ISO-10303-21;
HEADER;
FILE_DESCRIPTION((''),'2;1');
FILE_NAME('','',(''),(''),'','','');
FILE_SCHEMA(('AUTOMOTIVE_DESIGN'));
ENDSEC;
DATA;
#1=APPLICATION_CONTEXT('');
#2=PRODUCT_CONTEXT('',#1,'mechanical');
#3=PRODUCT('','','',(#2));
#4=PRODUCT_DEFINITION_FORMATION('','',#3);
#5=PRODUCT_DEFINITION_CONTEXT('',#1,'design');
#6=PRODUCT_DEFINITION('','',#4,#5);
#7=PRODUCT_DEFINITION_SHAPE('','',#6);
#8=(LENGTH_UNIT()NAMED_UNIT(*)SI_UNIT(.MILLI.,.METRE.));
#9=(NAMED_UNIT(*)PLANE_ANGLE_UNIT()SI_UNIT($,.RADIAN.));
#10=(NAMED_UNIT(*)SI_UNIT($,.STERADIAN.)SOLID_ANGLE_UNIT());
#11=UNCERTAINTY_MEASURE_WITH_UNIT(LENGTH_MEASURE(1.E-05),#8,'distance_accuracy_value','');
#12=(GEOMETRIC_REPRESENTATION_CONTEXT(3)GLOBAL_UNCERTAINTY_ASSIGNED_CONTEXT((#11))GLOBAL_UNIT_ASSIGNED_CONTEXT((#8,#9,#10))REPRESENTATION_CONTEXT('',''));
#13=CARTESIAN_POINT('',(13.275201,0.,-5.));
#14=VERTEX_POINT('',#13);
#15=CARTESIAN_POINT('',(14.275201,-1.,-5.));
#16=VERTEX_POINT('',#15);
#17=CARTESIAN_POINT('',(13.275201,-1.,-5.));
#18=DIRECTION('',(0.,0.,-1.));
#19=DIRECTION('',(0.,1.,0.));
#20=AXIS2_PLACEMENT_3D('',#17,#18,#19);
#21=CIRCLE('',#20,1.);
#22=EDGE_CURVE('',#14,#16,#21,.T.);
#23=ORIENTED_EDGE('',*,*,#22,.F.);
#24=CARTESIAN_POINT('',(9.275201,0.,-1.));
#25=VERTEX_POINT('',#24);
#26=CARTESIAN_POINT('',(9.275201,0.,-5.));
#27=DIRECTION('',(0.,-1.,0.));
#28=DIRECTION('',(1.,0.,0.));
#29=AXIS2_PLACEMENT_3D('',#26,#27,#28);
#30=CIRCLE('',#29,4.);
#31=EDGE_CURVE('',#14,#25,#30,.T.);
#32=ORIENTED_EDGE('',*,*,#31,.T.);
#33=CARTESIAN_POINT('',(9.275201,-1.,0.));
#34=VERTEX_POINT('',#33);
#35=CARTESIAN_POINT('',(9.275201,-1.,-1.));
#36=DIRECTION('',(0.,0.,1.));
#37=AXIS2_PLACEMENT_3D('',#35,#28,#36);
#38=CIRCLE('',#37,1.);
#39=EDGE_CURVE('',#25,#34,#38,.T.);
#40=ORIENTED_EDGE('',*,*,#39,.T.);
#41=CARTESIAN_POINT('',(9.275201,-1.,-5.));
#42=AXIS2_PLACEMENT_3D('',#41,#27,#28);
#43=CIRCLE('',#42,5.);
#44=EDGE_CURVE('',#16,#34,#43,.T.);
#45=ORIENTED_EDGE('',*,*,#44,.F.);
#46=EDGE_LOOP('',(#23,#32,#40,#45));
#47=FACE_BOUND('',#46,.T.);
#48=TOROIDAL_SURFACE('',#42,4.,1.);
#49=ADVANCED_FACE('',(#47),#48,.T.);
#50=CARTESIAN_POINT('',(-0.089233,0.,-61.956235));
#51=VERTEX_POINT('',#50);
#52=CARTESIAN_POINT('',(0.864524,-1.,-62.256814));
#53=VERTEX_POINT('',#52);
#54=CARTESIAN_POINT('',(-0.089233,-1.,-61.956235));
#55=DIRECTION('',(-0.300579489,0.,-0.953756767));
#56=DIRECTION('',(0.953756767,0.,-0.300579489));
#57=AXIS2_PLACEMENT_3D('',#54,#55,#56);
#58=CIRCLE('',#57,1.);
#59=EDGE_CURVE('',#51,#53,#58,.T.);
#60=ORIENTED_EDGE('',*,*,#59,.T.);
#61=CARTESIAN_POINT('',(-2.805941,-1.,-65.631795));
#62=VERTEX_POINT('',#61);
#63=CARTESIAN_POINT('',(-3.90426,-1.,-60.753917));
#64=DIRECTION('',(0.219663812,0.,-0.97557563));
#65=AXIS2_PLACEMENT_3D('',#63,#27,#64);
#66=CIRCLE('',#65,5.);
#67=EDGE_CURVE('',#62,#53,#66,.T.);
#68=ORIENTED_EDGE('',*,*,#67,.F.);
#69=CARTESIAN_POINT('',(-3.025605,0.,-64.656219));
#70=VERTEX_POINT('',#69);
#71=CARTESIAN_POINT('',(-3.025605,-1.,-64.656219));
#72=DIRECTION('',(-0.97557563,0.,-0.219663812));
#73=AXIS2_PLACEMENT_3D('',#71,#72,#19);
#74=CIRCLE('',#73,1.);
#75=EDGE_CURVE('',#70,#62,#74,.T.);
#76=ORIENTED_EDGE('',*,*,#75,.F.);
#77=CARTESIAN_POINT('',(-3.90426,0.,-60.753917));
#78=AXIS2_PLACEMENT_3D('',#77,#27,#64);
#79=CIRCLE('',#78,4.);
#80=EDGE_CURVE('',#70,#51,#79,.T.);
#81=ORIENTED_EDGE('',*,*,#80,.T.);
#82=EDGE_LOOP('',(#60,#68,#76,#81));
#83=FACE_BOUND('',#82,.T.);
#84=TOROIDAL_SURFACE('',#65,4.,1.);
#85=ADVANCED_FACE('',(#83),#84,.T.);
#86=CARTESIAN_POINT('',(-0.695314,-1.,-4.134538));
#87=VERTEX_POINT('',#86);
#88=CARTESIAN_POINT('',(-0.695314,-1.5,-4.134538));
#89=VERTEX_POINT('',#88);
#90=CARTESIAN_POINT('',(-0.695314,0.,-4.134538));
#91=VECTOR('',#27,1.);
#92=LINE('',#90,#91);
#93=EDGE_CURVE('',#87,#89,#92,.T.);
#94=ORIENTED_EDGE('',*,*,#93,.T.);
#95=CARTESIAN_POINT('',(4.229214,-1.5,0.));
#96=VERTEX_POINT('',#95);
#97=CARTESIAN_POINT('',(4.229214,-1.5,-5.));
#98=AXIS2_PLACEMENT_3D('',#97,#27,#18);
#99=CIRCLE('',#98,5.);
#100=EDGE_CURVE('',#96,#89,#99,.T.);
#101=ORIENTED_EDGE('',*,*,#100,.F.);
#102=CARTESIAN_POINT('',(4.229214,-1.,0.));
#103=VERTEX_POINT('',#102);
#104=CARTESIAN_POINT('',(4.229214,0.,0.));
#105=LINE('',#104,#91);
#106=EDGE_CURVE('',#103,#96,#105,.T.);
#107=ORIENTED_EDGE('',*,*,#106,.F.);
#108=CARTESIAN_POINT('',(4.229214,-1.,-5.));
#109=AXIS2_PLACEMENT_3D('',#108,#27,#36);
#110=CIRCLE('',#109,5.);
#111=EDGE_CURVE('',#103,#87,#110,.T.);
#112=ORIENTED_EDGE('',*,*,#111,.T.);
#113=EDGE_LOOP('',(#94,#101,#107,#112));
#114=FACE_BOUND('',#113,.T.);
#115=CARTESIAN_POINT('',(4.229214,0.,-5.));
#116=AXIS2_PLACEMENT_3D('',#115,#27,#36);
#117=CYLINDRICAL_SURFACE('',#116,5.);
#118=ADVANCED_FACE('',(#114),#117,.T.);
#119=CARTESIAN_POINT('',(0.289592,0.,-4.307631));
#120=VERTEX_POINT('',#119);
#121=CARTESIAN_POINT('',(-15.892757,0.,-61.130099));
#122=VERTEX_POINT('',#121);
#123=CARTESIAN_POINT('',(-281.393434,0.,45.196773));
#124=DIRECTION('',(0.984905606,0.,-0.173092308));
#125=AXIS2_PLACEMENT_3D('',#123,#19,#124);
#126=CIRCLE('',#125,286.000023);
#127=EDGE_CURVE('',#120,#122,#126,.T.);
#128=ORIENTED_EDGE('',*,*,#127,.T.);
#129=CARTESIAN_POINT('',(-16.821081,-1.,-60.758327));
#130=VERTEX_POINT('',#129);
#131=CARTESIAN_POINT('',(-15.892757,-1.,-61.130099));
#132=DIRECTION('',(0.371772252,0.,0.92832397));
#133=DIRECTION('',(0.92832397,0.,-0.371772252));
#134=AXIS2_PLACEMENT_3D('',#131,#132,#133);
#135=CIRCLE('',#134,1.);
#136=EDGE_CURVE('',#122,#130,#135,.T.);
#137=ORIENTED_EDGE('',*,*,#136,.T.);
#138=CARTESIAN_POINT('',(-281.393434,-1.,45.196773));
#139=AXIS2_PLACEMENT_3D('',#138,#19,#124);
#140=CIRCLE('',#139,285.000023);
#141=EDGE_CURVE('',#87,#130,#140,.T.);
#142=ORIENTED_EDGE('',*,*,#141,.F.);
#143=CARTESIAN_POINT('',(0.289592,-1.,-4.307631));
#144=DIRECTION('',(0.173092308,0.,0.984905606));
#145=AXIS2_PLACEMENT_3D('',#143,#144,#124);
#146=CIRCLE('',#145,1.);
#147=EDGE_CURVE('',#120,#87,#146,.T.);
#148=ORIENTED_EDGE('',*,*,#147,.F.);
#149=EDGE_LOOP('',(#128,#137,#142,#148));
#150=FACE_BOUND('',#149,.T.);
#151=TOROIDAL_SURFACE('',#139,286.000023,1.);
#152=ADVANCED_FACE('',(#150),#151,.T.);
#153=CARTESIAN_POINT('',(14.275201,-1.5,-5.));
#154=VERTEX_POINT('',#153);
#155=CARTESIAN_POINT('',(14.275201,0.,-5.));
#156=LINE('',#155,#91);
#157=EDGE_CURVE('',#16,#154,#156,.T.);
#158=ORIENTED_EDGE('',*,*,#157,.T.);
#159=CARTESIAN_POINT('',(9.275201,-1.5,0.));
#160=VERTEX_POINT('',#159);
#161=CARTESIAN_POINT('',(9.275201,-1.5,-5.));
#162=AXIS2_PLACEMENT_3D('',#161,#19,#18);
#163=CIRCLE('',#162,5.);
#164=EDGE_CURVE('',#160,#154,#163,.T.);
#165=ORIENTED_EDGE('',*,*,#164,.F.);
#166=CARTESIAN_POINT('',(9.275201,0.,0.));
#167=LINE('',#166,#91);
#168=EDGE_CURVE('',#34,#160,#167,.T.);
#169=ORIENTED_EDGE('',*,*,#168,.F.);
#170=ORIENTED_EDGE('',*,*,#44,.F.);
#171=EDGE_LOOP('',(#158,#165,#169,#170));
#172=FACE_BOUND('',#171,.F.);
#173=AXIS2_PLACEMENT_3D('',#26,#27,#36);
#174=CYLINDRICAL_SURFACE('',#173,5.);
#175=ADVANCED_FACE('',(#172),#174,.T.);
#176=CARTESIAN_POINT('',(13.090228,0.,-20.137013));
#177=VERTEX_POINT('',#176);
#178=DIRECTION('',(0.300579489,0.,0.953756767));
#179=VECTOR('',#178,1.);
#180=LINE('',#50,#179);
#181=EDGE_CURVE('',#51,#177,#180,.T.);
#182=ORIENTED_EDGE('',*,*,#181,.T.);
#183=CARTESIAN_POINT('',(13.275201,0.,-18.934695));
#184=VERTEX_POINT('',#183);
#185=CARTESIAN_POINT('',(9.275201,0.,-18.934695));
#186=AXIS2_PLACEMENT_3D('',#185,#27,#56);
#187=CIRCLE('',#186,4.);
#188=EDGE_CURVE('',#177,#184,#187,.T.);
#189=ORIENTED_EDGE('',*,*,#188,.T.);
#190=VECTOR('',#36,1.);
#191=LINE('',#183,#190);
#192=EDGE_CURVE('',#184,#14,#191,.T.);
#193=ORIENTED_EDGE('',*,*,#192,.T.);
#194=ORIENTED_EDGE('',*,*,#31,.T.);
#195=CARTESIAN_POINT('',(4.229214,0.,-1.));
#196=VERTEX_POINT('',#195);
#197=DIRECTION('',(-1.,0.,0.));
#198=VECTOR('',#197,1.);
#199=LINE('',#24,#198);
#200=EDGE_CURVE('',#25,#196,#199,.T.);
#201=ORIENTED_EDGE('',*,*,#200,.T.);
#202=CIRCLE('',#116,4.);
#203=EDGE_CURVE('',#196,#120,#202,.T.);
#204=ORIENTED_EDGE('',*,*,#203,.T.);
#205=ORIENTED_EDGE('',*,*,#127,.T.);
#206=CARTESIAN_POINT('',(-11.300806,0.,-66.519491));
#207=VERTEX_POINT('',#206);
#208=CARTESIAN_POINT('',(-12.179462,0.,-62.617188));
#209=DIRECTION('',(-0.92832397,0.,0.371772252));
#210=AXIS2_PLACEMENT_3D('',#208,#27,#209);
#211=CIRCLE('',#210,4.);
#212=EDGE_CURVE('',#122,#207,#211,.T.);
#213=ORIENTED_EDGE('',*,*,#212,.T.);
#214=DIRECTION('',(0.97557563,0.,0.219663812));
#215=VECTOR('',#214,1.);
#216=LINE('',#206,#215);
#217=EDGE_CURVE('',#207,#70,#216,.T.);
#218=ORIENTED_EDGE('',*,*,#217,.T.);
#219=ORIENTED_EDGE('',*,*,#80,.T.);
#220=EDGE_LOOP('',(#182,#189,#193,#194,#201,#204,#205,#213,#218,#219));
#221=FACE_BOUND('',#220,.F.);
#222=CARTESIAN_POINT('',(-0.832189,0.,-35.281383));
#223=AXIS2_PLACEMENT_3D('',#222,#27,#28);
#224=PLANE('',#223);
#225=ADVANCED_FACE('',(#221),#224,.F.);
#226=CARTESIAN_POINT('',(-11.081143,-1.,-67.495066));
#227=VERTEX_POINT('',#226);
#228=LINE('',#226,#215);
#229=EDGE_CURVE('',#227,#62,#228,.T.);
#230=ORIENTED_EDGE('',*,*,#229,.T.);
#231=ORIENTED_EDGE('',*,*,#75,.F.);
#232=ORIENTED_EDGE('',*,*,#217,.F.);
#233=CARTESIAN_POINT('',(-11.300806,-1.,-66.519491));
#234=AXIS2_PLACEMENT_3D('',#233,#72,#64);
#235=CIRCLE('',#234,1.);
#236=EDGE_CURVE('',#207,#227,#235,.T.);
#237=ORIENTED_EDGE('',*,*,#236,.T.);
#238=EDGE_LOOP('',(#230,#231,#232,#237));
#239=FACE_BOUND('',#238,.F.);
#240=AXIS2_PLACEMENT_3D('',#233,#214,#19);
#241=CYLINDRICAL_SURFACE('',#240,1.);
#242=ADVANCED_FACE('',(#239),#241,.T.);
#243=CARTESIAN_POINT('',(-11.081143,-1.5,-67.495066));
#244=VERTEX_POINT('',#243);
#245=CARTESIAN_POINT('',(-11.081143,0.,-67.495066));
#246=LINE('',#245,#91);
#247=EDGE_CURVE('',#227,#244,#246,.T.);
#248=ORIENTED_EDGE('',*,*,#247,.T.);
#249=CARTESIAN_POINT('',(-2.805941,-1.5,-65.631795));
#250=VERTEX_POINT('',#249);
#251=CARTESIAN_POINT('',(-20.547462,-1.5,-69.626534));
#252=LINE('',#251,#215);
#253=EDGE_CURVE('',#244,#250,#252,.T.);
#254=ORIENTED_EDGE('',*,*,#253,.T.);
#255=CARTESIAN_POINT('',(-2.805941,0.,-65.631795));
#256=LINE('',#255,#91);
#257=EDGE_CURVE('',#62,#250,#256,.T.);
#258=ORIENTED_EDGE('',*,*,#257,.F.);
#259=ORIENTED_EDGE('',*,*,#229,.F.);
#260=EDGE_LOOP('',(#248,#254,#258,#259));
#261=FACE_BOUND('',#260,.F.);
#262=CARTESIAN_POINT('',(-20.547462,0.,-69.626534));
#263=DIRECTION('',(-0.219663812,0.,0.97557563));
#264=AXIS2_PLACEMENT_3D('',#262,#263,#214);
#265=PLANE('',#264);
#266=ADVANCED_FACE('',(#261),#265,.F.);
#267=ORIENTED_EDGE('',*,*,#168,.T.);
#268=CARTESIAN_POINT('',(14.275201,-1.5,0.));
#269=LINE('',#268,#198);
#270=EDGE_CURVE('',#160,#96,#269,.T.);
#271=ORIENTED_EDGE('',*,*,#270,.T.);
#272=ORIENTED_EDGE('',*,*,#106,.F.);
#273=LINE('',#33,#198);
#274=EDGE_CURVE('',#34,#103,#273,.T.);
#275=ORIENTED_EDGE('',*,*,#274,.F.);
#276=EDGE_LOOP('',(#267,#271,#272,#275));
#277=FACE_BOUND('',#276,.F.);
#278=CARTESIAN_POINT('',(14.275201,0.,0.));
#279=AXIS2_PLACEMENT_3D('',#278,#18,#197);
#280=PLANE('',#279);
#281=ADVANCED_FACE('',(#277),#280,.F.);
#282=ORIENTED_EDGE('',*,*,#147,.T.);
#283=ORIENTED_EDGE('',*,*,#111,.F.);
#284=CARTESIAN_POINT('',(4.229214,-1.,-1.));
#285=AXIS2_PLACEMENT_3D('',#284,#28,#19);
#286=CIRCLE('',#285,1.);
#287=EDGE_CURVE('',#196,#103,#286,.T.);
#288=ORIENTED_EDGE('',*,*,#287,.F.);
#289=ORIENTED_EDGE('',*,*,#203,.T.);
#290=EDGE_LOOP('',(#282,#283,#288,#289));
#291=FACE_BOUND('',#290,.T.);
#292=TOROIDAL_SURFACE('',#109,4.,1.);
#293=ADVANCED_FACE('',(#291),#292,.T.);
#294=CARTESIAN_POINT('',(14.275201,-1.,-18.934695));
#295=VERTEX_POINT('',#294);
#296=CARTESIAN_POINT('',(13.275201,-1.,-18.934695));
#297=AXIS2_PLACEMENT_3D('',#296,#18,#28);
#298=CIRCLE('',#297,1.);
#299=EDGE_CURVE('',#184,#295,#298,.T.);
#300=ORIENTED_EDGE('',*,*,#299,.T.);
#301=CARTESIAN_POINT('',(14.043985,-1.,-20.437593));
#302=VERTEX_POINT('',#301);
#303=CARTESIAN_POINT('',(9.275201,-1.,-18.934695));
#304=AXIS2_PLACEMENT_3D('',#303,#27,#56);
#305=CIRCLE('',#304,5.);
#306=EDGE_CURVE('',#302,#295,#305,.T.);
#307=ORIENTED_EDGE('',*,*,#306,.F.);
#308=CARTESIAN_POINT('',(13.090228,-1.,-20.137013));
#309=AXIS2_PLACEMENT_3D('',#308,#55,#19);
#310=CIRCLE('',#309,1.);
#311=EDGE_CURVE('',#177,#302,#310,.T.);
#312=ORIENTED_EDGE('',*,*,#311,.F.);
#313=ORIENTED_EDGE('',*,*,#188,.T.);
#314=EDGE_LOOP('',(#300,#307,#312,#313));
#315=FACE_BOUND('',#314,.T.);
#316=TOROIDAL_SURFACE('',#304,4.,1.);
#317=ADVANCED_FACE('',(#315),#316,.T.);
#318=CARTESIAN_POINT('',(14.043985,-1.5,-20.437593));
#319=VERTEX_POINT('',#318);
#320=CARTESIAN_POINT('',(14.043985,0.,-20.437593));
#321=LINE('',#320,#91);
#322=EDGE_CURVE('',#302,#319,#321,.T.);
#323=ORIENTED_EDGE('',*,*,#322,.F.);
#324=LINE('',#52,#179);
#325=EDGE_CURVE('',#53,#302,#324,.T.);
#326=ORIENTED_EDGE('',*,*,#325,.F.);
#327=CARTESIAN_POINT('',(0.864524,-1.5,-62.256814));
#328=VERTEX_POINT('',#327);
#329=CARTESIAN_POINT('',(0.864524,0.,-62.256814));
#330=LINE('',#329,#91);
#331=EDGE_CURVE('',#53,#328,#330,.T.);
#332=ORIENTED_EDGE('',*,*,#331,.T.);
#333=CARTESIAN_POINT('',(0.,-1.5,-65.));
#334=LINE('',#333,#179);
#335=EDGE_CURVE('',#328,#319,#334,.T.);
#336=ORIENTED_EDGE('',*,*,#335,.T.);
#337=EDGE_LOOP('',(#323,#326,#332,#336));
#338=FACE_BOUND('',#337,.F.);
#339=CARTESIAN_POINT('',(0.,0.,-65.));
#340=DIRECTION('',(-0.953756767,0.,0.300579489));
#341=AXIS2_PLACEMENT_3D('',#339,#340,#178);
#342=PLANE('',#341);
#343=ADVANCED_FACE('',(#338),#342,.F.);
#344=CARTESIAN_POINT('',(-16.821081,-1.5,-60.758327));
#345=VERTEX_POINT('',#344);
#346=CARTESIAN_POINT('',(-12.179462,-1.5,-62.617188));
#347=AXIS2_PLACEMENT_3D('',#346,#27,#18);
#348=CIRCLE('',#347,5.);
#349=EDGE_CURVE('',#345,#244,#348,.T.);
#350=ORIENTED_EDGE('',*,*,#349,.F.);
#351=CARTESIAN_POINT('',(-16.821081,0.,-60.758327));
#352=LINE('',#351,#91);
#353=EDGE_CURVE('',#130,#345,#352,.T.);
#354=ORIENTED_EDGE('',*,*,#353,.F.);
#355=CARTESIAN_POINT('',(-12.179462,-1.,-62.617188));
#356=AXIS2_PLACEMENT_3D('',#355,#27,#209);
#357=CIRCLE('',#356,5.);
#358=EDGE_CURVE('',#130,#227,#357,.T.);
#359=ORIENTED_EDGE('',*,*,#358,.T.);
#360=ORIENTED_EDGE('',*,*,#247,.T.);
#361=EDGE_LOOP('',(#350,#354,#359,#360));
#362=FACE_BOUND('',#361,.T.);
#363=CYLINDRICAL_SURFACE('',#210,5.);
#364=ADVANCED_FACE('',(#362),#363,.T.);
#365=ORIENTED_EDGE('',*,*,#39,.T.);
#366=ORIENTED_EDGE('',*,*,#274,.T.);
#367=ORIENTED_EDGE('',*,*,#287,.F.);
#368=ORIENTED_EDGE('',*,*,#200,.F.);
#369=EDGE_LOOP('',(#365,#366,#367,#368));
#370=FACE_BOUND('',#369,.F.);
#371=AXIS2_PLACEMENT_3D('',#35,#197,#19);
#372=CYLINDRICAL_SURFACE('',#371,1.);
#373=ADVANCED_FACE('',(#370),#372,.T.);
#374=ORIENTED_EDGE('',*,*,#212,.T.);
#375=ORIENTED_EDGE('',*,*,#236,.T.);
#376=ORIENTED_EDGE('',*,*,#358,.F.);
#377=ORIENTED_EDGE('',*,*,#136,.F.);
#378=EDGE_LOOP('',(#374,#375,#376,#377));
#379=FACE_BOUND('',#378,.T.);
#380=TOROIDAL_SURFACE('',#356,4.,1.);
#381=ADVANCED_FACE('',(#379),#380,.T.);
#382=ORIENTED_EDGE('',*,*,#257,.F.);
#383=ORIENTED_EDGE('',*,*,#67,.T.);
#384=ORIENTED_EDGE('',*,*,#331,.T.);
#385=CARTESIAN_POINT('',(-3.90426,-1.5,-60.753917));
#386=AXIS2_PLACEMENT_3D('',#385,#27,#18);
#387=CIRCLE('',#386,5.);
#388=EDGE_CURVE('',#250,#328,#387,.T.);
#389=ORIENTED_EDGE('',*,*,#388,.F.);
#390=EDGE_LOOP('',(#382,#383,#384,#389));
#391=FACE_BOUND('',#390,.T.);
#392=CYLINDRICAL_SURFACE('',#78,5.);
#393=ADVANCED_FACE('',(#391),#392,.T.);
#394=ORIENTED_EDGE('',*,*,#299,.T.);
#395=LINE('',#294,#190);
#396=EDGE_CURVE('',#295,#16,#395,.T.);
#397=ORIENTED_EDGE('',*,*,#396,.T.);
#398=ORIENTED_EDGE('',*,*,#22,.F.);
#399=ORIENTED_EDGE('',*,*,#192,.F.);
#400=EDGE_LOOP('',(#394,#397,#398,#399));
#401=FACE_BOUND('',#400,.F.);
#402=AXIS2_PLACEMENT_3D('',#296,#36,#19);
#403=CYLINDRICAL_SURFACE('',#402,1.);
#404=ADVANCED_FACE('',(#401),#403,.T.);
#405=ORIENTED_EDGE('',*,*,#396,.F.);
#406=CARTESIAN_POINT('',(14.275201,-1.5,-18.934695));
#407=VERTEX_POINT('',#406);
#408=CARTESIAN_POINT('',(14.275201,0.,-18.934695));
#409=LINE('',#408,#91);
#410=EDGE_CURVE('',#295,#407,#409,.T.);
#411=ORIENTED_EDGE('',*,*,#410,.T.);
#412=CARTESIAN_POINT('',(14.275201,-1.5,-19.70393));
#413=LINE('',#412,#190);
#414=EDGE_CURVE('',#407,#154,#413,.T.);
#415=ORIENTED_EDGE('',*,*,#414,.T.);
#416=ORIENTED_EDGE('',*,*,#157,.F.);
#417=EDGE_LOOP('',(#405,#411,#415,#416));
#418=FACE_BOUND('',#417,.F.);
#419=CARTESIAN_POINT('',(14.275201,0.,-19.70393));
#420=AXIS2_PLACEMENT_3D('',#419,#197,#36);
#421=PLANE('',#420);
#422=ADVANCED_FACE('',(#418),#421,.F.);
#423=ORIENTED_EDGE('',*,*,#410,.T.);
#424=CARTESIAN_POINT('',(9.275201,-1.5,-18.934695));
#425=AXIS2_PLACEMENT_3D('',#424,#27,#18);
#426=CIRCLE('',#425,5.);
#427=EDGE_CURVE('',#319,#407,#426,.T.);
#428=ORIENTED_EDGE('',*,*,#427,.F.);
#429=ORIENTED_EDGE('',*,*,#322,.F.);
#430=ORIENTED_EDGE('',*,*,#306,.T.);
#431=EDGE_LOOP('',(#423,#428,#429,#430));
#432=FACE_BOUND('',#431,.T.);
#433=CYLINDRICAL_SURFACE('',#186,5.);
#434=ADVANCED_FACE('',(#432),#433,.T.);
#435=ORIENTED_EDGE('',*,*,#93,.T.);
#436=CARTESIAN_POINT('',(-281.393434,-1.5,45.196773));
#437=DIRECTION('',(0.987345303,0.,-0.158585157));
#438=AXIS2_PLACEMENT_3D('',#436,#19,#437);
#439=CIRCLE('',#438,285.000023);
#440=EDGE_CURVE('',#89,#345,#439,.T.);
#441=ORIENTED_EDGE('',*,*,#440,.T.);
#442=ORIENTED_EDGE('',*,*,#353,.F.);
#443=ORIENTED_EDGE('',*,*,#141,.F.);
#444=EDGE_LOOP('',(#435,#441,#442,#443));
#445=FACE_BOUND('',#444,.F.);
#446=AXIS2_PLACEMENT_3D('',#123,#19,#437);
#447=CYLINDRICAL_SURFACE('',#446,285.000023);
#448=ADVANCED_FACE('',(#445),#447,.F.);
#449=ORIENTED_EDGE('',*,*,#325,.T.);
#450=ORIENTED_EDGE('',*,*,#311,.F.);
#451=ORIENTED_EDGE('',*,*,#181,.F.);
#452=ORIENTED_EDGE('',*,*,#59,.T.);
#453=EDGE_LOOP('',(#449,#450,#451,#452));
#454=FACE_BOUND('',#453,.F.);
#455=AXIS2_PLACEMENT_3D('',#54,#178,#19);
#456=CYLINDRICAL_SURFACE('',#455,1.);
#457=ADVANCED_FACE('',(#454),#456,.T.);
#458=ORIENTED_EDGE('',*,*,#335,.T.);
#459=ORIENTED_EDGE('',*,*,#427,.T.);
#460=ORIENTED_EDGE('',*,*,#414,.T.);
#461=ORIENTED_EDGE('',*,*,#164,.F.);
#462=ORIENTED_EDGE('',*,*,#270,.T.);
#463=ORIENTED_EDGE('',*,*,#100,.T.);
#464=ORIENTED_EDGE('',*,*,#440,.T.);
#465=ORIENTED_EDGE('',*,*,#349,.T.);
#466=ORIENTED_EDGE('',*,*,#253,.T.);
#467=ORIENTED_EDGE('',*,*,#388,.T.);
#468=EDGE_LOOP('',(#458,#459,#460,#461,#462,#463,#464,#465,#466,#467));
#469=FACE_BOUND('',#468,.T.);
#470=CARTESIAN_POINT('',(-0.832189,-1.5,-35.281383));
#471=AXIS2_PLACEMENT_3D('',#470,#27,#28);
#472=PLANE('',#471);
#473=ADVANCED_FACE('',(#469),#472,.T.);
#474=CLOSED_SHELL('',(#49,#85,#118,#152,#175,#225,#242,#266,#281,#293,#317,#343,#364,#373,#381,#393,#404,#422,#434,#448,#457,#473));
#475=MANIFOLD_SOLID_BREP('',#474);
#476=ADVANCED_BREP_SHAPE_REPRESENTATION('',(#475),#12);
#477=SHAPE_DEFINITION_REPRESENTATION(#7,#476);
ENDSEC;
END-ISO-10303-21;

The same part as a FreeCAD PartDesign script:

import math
import FreeCAD as App
import Part
import Sketcher


def edges_at(feature, points):
    """Names of the edges that pass closest to the given points."""
    edges = feature.Shape.Edges
    near = lambda p: min(range(len(edges)), key=lambda i: edges[i].distToShape(Part.Vertex(*p))[0])
    return sorted({f"Edge{near(p) + 1}" for p in points})

doc = App.newDocument("Part")
params = doc.addObject("Spreadsheet::Sheet", "Params")
for row, (alias, value) in enumerate([
    ("pad1_length", "1.5 mm"),
    ("fillet_radius", "5 mm"),
    ("fillet2_radius", "1 mm"),
], start=1):
    params.set(f"A{row}", alias)
    params.set(f"B{row}", "=" + value)
    params.setAlias(f"B{row}", alias)

body = doc.addObject("PartDesign::Body", "Body")

# Sketch on XZ plane
sketch1 = body.newObject("Sketcher::SketchObject", "Sketch")
sketch1.AttachmentSupport = (doc.getObject("XZ_Plane"), [""])
sketch1.MapMode = "FlatFace"
sketch1.addGeometry([
    Part.LineSegment(App.Vector(14, 0, 0), App.Vector(0, 0, 0)),  # 0
    Part.ArcOfCircle(Part.Circle(App.Vector(-281, 45, 0), App.Vector(0, 0, 1), 285), math.radians(-23.76), math.radians(-9.12)),  # 1
    Part.LineSegment(App.Vector(-21, -70, 0), App.Vector(0, -65, 0)),  # 2
    Part.LineSegment(App.Vector(0, -65, 0), App.Vector(14, -20, 0)),  # 3
    Part.LineSegment(App.Vector(14, -20, 0), App.Vector(14, 0, 0)),  # 4
], False)
sketch1.addConstraint([
    Sketcher.Constraint("Coincident", 0, 2, 1, 2),
    Sketcher.Constraint("Coincident", 1, 1, 2, 1),
    Sketcher.Constraint("Coincident", 2, 2, 3, 1),
    Sketcher.Constraint("Coincident", 3, 2, 4, 1),
    Sketcher.Constraint("Coincident", 4, 2, 0, 1),
    Sketcher.Constraint("Horizontal", 0),
    Sketcher.Constraint("Vertical", 4),
    Sketcher.Constraint("Coincident", 0, 2, -1, 1),
    Sketcher.Constraint("PointOnObject", 2, 2, -2),
    Sketcher.Constraint("DistanceY", 2, 2, -1, 1, 65.0),
    Sketcher.Constraint("DistanceX", 0, 2, 0, 1, 14.275201),
    Sketcher.Constraint("Radius", 1, 285.000023),
    Sketcher.Constraint("DistanceY", 4, 1, 4, 2, 19.70393),
    Sketcher.Constraint("DistanceX", 1, 1, -1, 1, 20.547462),
    Sketcher.Constraint("Distance", 2, 21.061885),
])
pad1 = body.newObject("PartDesign::Pad", "Pad")
pad1.Profile = sketch1
pad1.setExpression("Length", "Params.pad1_length")
doc.recompute()

fillet = body.newObject("PartDesign::Fillet", "Fillet")
fillet.Base = (pad1, edges_at(pad1, [
    (-20.547, -0.75, -69.627),
    (0, -0.75, -65),
    (14.275, -0.75, -19.704),
    (14.275, -0.75, 0),
    (0, -0.75, 0),
]))
fillet.setExpression("Radius", "Params.fillet_radius")
doc.recompute()

fillet2 = body.newObject("PartDesign::Fillet", "Fillet001")
fillet2.Base = (fillet, edges_at(fillet, [(-7.292, 0, -32.864)]))
fillet2.setExpression("Radius", "Params.fillet2_radius")

doc.recompute()
